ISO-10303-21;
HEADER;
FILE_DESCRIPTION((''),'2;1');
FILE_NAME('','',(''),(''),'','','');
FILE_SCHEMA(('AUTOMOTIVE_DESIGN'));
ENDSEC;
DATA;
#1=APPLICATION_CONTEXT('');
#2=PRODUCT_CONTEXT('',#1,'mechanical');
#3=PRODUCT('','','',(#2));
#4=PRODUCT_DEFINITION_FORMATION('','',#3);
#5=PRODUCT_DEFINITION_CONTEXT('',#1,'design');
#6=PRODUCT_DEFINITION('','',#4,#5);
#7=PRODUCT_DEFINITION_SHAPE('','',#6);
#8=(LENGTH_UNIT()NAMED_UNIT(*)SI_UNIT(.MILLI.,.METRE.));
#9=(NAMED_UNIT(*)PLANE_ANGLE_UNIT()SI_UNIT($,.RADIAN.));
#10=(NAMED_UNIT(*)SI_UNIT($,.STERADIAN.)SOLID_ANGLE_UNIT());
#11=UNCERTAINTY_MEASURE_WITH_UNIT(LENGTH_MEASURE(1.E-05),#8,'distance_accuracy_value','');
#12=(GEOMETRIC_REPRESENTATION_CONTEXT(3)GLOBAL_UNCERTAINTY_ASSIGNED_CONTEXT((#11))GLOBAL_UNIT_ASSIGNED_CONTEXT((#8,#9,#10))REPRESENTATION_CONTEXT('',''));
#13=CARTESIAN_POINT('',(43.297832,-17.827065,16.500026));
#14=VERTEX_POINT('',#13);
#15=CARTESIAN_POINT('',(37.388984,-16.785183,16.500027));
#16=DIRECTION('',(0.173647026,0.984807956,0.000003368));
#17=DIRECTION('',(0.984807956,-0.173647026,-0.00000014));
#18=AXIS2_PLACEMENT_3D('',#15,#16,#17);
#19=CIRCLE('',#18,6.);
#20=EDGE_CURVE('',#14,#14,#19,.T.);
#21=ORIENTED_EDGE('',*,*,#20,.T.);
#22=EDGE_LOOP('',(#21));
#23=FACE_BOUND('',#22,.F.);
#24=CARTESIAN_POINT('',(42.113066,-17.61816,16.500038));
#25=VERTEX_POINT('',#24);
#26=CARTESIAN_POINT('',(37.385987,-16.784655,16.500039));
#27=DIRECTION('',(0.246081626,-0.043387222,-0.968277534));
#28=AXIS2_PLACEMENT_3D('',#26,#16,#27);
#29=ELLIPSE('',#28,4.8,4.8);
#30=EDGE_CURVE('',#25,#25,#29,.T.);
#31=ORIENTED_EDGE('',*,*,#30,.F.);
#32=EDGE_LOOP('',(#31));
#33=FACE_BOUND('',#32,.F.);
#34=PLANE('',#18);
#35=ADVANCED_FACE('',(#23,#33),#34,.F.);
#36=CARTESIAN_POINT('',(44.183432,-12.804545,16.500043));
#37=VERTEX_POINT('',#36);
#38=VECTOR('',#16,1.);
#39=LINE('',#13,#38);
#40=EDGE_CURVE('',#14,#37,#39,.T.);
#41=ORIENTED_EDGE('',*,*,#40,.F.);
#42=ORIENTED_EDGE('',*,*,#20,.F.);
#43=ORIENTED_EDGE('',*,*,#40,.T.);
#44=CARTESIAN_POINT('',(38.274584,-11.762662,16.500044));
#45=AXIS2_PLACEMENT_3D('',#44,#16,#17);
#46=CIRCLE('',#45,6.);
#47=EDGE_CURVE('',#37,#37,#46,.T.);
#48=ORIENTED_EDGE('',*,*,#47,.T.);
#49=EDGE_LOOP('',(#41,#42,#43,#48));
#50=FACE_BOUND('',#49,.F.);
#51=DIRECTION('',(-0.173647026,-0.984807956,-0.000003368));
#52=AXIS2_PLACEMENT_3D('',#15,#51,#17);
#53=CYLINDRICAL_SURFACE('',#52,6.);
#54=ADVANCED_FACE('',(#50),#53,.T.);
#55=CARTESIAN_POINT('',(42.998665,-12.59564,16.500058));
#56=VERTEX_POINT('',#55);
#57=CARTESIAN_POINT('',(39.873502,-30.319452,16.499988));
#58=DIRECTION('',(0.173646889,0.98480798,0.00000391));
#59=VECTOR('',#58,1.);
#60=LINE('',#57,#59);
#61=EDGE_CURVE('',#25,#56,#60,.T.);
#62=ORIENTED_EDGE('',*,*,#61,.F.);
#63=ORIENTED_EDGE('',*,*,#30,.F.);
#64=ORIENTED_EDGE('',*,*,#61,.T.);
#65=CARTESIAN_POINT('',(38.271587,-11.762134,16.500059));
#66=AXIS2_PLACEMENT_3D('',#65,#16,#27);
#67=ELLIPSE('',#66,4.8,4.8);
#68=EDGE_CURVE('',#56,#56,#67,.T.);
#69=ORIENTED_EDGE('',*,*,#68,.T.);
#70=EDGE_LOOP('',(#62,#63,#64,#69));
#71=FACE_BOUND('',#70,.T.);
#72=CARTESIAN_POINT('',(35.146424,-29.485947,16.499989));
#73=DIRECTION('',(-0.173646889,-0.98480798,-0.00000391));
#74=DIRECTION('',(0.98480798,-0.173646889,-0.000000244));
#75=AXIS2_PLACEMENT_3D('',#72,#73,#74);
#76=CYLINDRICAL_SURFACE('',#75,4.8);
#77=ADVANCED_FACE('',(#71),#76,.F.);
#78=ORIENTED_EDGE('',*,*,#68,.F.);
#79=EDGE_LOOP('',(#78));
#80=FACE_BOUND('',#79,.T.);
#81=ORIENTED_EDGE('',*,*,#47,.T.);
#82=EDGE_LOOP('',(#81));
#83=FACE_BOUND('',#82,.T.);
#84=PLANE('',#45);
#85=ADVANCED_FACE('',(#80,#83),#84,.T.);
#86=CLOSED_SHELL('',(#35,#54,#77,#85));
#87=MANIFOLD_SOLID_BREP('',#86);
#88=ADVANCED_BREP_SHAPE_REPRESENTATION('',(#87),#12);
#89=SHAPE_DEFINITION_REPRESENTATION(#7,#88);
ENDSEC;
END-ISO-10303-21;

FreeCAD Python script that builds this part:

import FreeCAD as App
import Part
import Sketcher

doc = App.newDocument("Part")
body = doc.addObject("PartDesign::Body", "Body")

# Sketch on XY plane
sketch1 = doc.addObject("Sketcher::SketchObject", "Sketch")
body.addObject(sketch1)
sketch1.AttachmentSupport = (doc.XY_Plane, [""])
sketch1.MapMode = "FlatFace"
sketch1.addGeometry(Part.Circle(App.Vector(0, 0, 0), App.Vector(0, 0, 1), 4.8), False)
sketch1.addConstraint([
    Sketcher.Constraint("Coincident", 0, 3, -1, 1),
    Sketcher.Constraint("Diameter", 0, 9.6),
])
pad1 = doc.addObject("PartDesign::Pad", "Pad")
body.addObject(pad1)
pad1.Profile = sketch1
pad1.Length = 18
body2 = doc.addObject("PartDesign::Body", "Body001")
doc.recompute()

body.Placement = App.Placement(App.Vector(0, 0, 0), App.Rotation(App.Vector(1, 0, 0), 270.000224))
boolean = doc.addObject("PartDesign::Boolean", "Boolean")
body2.addObject(boolean)
boolean.Type = "Fuse"
boolean.addObjects([body])
body3 = doc.addObject("PartDesign::Body", "Body002")
doc.recompute()

body2.Placement = App.Placement(App.Vector(0, 0, 0), App.Rotation(App.Vector(0, 1, 0), 0.000014))
boolean2 = doc.addObject("PartDesign::Boolean", "Boolean001")
body3.addObject(boolean2)
boolean2.Type = "Fuse"
boolean2.addObjects([body2])
body4 = doc.addObject("PartDesign::Body", "Body003")
doc.recompute()

body3.Placement = App.Placement(App.Vector(35.146424, -29.285947, 16.499989), App.Rotation(App.Vector(0, 0, 1), 350.000075))
boolean3 = doc.addObject("PartDesign::Boolean", "Boolean002")
body4.addObject(boolean3)
boolean3.Type = "Fuse"
boolean3.addObjects([body3])
body5 = doc.addObject("PartDesign::Body", "Body004")

# Sketch on XY plane
sketch2 = doc.addObject("Sketcher::SketchObject", "Sketch001")
body5.addObject(sketch2)
sketch2.AttachmentSupport = (doc.getObject("XY_Plane004"), [""])
sketch2.MapMode = "FlatFace"
sketch2.addGeometry(Part.Circle(App.Vector(0, 0, 0), App.Vector(0, 0, 1), 6), False)
sketch2.addConstraint([
    Sketcher.Constraint("Coincident", 0, 3, -1, 1),
    Sketcher.Constraint("Diameter", 0, 12.0),
])
pad2 = doc.addObject("PartDesign::Pad", "Pad001")
body5.addObject(pad2)
pad2.Profile = sketch2
pad2.Length = 5.1
body6 = doc.addObject("PartDesign::Body", "Body005")
doc.recompute()

body5.Placement = App.Placement(App.Vector(0, 0, 0), App.Rotation(App.Vector(1, 0, 0), 270.000193))
boolean4 = doc.addObject("PartDesign::Boolean", "Boolean003")
body6.addObject(boolean4)
boolean4.Type = "Fuse"
boolean4.addObjects([body5])
body7 = doc.addObject("PartDesign::Body", "Body006")
doc.recompute()

body6.Placement = App.Placement(App.Vector(0, 0, 0), App.Rotation(App.Vector(0, 1, 0), 0.000008))
boolean5 = doc.addObject("PartDesign::Boolean", "Boolean004")
body7.addObject(boolean5)
boolean5.Type = "Fuse"
boolean5.addObjects([body6])
body8 = doc.addObject("PartDesign::Body", "Body007")
doc.recompute()

body7.Placement = App.Placement(App.Vector(37.388984, -16.585183, 16.500027), App.Rotation(App.Vector(0, 0, 1), 350.000067))
boolean6 = doc.addObject("PartDesign::Boolean", "Boolean005")
body8.addObject(boolean6)
boolean6.Type = "Fuse"
boolean6.addObjects([body7])
doc.recompute()

boolean7 = doc.addObject("PartDesign::Boolean", "Boolean006")
body8.addObject(boolean7)
boolean7.Type = "Cut"
boolean7.addObjects([body4])
body9 = doc.addObject("PartDesign::Body", "Body008")
doc.recompute()

body8.Placement = App.Placement(App.Vector(0, -0.2, 0), App.Rotation(App.Vector(0, 0, 1), 0))
boolean8 = doc.addObject("PartDesign::Boolean", "Boolean007")
body9.addObject(boolean8)
boolean8.Type = "Fuse"
boolean8.addObjects([body8])

doc.recompute()
